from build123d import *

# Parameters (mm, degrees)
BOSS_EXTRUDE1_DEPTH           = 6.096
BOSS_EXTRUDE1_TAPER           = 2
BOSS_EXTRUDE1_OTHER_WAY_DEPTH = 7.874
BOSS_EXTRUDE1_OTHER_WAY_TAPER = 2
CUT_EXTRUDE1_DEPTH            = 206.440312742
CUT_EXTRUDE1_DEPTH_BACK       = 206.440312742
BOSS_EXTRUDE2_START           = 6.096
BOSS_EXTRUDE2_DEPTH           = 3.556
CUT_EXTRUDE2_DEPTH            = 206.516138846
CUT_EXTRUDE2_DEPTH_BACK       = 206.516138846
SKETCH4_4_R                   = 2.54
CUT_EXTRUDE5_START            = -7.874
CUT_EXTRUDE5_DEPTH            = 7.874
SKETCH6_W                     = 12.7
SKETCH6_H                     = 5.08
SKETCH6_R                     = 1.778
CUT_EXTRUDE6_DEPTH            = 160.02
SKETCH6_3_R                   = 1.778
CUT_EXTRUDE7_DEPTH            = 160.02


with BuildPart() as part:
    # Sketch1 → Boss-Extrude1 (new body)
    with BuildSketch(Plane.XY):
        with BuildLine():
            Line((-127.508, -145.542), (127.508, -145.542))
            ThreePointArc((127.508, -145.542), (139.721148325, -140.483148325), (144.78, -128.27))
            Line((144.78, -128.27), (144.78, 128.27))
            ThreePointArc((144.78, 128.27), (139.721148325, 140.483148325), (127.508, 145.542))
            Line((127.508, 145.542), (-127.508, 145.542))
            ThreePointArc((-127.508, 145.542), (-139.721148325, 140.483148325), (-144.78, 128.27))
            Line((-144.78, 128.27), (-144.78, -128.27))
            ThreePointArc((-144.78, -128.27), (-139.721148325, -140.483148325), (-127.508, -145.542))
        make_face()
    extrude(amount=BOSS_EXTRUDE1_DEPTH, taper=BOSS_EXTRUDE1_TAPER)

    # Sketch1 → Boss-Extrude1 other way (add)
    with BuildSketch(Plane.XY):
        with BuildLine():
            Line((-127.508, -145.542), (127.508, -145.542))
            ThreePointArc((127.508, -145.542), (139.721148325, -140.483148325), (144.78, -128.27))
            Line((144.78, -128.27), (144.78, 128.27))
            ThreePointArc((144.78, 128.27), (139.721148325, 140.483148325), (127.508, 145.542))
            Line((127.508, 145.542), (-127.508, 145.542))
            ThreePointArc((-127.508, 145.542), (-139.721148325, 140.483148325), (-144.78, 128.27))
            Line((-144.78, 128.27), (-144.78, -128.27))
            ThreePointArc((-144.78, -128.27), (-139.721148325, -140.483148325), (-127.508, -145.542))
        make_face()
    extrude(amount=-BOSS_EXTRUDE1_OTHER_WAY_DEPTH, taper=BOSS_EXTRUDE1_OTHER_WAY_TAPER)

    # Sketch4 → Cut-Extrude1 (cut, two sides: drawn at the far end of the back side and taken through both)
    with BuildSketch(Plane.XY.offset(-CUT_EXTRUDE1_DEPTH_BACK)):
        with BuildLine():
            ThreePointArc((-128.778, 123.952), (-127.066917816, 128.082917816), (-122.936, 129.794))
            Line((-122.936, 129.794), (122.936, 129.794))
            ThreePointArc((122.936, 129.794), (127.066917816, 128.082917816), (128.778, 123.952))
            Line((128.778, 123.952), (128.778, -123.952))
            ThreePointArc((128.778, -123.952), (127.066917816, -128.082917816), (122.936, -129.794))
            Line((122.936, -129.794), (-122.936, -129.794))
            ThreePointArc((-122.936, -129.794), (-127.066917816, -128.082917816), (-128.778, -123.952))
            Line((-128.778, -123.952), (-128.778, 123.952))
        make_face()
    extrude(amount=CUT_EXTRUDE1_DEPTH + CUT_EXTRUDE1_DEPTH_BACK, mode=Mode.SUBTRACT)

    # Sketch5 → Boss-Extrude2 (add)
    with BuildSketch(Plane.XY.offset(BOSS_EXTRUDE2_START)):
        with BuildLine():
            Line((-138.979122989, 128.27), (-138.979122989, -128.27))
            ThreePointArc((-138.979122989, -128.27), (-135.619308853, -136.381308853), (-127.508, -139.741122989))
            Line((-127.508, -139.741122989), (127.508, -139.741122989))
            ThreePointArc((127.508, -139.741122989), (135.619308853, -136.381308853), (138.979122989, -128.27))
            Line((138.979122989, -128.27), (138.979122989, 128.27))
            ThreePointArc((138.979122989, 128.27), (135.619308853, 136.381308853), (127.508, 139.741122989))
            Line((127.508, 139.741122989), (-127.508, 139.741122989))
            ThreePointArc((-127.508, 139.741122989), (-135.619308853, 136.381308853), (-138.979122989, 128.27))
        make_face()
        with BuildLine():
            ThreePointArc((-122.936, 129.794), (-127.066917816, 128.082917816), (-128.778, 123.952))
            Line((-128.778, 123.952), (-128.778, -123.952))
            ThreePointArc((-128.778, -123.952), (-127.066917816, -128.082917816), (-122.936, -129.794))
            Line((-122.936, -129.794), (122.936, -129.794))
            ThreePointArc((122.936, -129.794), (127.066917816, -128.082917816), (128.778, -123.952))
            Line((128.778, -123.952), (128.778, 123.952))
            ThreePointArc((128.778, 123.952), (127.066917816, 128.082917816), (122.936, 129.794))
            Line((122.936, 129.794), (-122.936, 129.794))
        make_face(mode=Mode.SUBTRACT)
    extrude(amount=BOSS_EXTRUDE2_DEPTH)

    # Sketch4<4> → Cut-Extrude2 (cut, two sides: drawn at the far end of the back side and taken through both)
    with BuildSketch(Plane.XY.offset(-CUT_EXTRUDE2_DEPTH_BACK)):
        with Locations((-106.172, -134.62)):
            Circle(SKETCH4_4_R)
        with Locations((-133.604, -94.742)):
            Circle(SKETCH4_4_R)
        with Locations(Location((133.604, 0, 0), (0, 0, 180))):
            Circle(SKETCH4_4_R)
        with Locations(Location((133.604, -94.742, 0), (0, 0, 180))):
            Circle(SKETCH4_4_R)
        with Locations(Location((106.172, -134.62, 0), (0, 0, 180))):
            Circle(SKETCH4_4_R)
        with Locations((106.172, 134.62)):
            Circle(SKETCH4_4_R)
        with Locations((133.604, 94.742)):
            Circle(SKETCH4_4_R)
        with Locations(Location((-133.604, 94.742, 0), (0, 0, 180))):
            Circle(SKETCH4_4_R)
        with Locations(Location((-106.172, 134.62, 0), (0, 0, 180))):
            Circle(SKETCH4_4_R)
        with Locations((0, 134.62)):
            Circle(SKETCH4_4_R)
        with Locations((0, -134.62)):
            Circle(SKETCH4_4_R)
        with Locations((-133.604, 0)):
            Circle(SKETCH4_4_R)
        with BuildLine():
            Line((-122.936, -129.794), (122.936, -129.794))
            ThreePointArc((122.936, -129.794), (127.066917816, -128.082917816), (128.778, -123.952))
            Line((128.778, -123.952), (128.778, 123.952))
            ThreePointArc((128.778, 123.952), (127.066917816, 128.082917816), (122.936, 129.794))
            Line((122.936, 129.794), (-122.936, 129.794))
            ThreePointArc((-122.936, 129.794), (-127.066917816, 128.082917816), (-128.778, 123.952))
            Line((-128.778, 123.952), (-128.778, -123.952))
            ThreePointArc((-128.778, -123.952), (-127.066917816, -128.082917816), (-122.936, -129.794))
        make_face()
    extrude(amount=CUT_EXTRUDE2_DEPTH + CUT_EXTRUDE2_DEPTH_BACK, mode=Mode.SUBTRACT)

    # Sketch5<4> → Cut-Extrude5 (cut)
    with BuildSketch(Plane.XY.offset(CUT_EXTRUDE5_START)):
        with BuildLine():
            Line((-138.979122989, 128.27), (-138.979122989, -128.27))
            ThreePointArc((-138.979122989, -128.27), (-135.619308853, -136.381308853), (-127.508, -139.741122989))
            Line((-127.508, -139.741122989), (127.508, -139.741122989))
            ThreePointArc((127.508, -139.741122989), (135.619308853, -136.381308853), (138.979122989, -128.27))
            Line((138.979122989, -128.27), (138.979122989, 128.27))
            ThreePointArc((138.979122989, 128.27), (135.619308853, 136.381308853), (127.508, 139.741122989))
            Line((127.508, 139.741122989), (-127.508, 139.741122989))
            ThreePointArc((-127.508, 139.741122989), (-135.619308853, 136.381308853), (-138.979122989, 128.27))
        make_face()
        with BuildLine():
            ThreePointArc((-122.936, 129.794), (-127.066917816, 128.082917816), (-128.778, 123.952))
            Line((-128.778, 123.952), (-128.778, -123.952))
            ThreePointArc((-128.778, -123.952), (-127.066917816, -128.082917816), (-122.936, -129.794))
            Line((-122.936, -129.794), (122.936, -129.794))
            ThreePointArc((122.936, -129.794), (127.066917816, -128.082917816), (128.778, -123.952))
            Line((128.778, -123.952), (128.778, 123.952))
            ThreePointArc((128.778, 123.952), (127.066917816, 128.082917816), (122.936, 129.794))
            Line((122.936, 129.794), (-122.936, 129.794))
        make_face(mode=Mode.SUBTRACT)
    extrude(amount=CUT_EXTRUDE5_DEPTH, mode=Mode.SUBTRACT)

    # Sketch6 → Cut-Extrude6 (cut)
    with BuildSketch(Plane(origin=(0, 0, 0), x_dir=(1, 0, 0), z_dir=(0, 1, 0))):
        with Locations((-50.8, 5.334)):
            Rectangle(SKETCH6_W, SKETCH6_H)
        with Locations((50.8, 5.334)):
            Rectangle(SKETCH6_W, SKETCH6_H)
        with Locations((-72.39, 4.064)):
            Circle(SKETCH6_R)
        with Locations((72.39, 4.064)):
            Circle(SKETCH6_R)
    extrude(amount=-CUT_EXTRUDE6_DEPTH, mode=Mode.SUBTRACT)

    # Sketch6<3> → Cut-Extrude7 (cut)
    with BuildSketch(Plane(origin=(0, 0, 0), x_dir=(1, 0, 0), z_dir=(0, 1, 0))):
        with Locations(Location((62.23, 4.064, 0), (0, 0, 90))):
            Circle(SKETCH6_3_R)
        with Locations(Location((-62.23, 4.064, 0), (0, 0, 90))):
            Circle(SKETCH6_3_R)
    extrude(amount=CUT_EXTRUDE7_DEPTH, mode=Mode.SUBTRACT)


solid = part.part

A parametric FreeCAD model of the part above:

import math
import FreeCAD as App
import Part
import Sketcher
from FreeCAD import Vector
Q = App.Units.Quantity


def add_polygon(sketch, points):
    """Adds a closed chain of lines whose ends are joined by coincident constraints."""
    first, n = sketch.GeometryCount, len(points)
    for a, b in zip(points, points[1:] + points[:1]):
        sketch.addGeometry(Part.LineSegment(App.Vector(*a, 0), App.Vector(*b, 0)), False)
    for i in range(n):
        sketch.addConstraint(Sketcher.Constraint("Coincident", first + i, 2, first + (i + 1) % n, 1))

doc = App.newDocument("Part")
body = doc.addObject("PartDesign::Body", "Body")

# Sketch on XY plane
sketch1 = body.newObject("Sketcher::SketchObject", "Sketch")
sketch1.AttachmentSupport = (doc.getObject("XY_Plane"), [""])
sketch1.MapMode = "FlatFace"
sketch1.addGeometry([
    Part.LineSegment(Vector(-128, -146, 0), Vector(128, -146, 0)),  # 0
    Part.ArcOfCircle(Part.Circle(Vector(128, -128, 0), Vector(0, 0, 1), 17), math.radians(-90), math.radians(0)),  # 1
    Part.LineSegment(Vector(145, -128, 0), Vector(145, 128, 0)),  # 2
    Part.ArcOfCircle(Part.Circle(Vector(128, 128, 0), Vector(0, 0, 1), 17), math.radians(0), math.radians(90)),  # 3
    Part.LineSegment(Vector(128, 146, 0), Vector(-128, 146, 0)),  # 4
    Part.ArcOfCircle(Part.Circle(Vector(-128, 128, 0), Vector(0, 0, 1), 17), math.radians(90), math.radians(180)),  # 5
    Part.LineSegment(Vector(-145, 128, 0), Vector(-145, -128, 0)),  # 6
    Part.ArcOfCircle(Part.Circle(Vector(-128, -128, 0), Vector(0, 0, 1), 17), math.radians(180), math.radians(270)),  # 7
], False)
sketch1.addConstraint([
    Sketcher.Constraint("Tangent", 0, 2, 1, 1),
    Sketcher.Constraint("Tangent", 1, 2, 2, 1),
    Sketcher.Constraint("Tangent", 2, 2, 3, 1),
    Sketcher.Constraint("Tangent", 3, 2, 4, 1),
    Sketcher.Constraint("Tangent", 4, 2, 5, 1),
    Sketcher.Constraint("Tangent", 5, 2, 6, 1),
    Sketcher.Constraint("Tangent", 6, 2, 7, 1),
    Sketcher.Constraint("Tangent", 7, 2, 0, 1),
    Sketcher.Constraint("Horizontal", 0),
    Sketcher.Constraint("Vertical", 2),
    Sketcher.Constraint("Horizontal", 4),
    Sketcher.Constraint("Vertical", 6),
    Sketcher.Constraint("Equal", 1, 3),
    Sketcher.Constraint("Equal", 3, 5),
    Sketcher.Constraint("Equal", 5, 7),
    Sketcher.Constraint("Symmetric", 1, 3, 5, 3, -1, 1),
    Sketcher.Constraint("Radius", 1, Q("0.68 in")),
    Sketcher.Constraint("DistanceY", 2, 1, 2, 2, Q("10.1 in")),
    Sketcher.Constraint("DistanceX", 0, 1, 0, 2, Q("10.04 in")),
])
pad1 = body.newObject("PartDesign::Pad", "Pad")
pad1.Profile = sketch1
pad1.Length = Q("0.24 in")
pad1.TaperAngle = -2

# Sketch on XY plane
sketch2 = body.newObject("Sketcher::SketchObject", "Sketch001")
sketch2.AttachmentSupport = (doc.getObject("XY_Plane"), [""])
sketch2.MapMode = "FlatFace"
sketch2.addGeometry([
    Part.LineSegment(Vector(-128, -146, 0), Vector(128, -146, 0)),  # 0
    Part.ArcOfCircle(Part.Circle(Vector(128, -128, 0), Vector(0, 0, 1), 17), math.radians(-90), math.radians(0)),  # 1
    Part.LineSegment(Vector(145, -128, 0), Vector(145, 128, 0)),  # 2
    Part.ArcOfCircle(Part.Circle(Vector(128, 128, 0), Vector(0, 0, 1), 17), math.radians(0), math.radians(90)),  # 3
    Part.LineSegment(Vector(128, 146, 0), Vector(-128, 146, 0)),  # 4
    Part.ArcOfCircle(Part.Circle(Vector(-128, 128, 0), Vector(0, 0, 1), 17), math.radians(90), math.radians(180)),  # 5
    Part.LineSegment(Vector(-145, 128, 0), Vector(-145, -128, 0)),  # 6
    Part.ArcOfCircle(Part.Circle(Vector(-128, -128, 0), Vector(0, 0, 1), 17), math.radians(180), math.radians(270)),  # 7
], False)
sketch2.addConstraint([
    Sketcher.Constraint("Tangent", 0, 2, 1, 1),
    Sketcher.Constraint("Tangent", 1, 2, 2, 1),
    Sketcher.Constraint("Tangent", 2, 2, 3, 1),
    Sketcher.Constraint("Tangent", 3, 2, 4, 1),
    Sketcher.Constraint("Tangent", 4, 2, 5, 1),
    Sketcher.Constraint("Tangent", 5, 2, 6, 1),
    Sketcher.Constraint("Tangent", 6, 2, 7, 1),
    Sketcher.Constraint("Tangent", 7, 2, 0, 1),
    Sketcher.Constraint("Horizontal", 0),
    Sketcher.Constraint("Vertical", 2),
    Sketcher.Constraint("Horizontal", 4),
    Sketcher.Constraint("Vertical", 6),
    Sketcher.Constraint("Equal", 1, 3),
    Sketcher.Constraint("Equal", 3, 5),
    Sketcher.Constraint("Equal", 5, 7),
    Sketcher.Constraint("Symmetric", 1, 3, 5, 3, -1, 1),
    Sketcher.Constraint("Radius", 1, Q("0.68 in")),
    Sketcher.Constraint("DistanceY", 2, 1, 2, 2, Q("10.1 in")),
    Sketcher.Constraint("DistanceX", 0, 1, 0, 2, Q("10.04 in")),
])
pad2 = body.newObject("PartDesign::Pad", "Pad001")
pad2.Profile = sketch2
pad2.Length = Q("0.31 in")
pad2.Reversed = True
pad2.TaperAngle = -2

# Sketch on XY plane
sketch3 = body.newObject("Sketcher::SketchObject", "Sketch002")
sketch3.AttachmentSupport = (doc.getObject("XY_Plane"), [""])
sketch3.MapMode = "FlatFace"
sketch3.addGeometry([
    Part.ArcOfCircle(Part.Circle(Vector(-123, 124, 0), Vector(0, 0, 1), 6), math.radians(90), math.radians(180)),  # 0
    Part.LineSegment(Vector(-129, 124, 0), Vector(-129, -124, 0)),  # 1
    Part.ArcOfCircle(Part.Circle(Vector(-123, -124, 0), Vector(0, 0, 1), 6), math.radians(180), math.radians(270)),  # 2
    Part.LineSegment(Vector(-123, -130, 0), Vector(123, -130, 0)),  # 3
    Part.ArcOfCircle(Part.Circle(Vector(123, -124, 0), Vector(0, 0, 1), 6), math.radians(-90), math.radians(0)),  # 4
    Part.LineSegment(Vector(129, -124, 0), Vector(129, 124, 0)),  # 5
    Part.ArcOfCircle(Part.Circle(Vector(123, 124, 0), Vector(0, 0, 1), 6), math.radians(0), math.radians(90)),  # 6
    Part.LineSegment(Vector(123, 130, 0), Vector(-123, 130, 0)),  # 7
], False)
sketch3.addConstraint([
    Sketcher.Constraint("Tangent", 0, 2, 1, 1),
    Sketcher.Constraint("Tangent", 1, 2, 2, 1),
    Sketcher.Constraint("Tangent", 2, 2, 3, 1),
    Sketcher.Constraint("Tangent", 3, 2, 4, 1),
    Sketcher.Constraint("Tangent", 4, 2, 5, 1),
    Sketcher.Constraint("Tangent", 5, 2, 6, 1),
    Sketcher.Constraint("Tangent", 6, 2, 7, 1),
    Sketcher.Constraint("Tangent", 7, 2, 0, 1),
    Sketcher.Constraint("Vertical", 1),
    Sketcher.Constraint("Horizontal", 3),
    Sketcher.Constraint("Vertical", 5),
    Sketcher.Constraint("Horizontal", 7),
    Sketcher.Constraint("Equal", 0, 2),
    Sketcher.Constraint("Equal", 2, 4),
    Sketcher.Constraint("Equal", 4, 6),
    Sketcher.Constraint("Symmetric", 0, 3, 4, 3, -1, 1),
    Sketcher.Constraint("Radius", 0, Q("0.23 in")),
    Sketcher.Constraint("DistanceX", 3, 1, 3, 2, Q("9.68 in")),
    Sketcher.Constraint("DistanceY", 1, 2, 1, 1, Q("9.76 in")),
])
pocket1 = body.newObject("PartDesign::Pocket", "Pocket")
pocket1.Profile = sketch3
pocket1.Type = "ThroughAll"
pocket1.Midplane = True

# Sketch on XY plane
sketch4 = body.newObject("Sketcher::SketchObject", "Sketch003")
sketch4.AttachmentSupport = (doc.getObject("XY_Plane"), [""])
sketch4.MapMode = "FlatFace"
sketch4.AttachmentOffset = App.Placement(Vector(0, 0, 0.24 * 25.4), App.Rotation())
sketch4.addGeometry([
    Part.LineSegment(Vector(-139, 128, 0), Vector(-139, -128, 0)),  # 0
    Part.ArcOfCircle(Part.Circle(Vector(-128, -128, 0), Vector(0, 0, 1), 11), math.radians(-180), math.radians(-90)),  # 1
    Part.LineSegment(Vector(-128, -140, 0), Vector(128, -140, 0)),  # 2
    Part.ArcOfCircle(Part.Circle(Vector(128, -128, 0), Vector(0, 0, 1), 11), math.radians(-90), math.radians(0)),  # 3
    Part.LineSegment(Vector(139, -128, 0), Vector(139, 128, 0)),  # 4
    Part.ArcOfCircle(Part.Circle(Vector(128, 128, 0), Vector(0, 0, 1), 11), math.radians(0), math.radians(90)),  # 5
    Part.LineSegment(Vector(128, 140, 0), Vector(-128, 140, 0)),  # 6
    Part.ArcOfCircle(Part.Circle(Vector(-128, 128, 0), Vector(0, 0, 1), 11), math.radians(90), math.radians(180)),  # 7
    Part.ArcOfCircle(Part.Circle(Vector(-123, 124, 0), Vector(0, 0, 1), 6), math.radians(90), math.radians(180)),  # 8
    Part.LineSegment(Vector(-123, 130, 0), Vector(123, 130, 0)),  # 9
    Part.ArcOfCircle(Part.Circle(Vector(123, 124, 0), Vector(0, 0, 1), 6), math.radians(0), math.radians(90)),  # 10
    Part.LineSegment(Vector(129, 124, 0), Vector(129, -124, 0)),  # 11
    Part.ArcOfCircle(Part.Circle(Vector(123, -124, 0), Vector(0, 0, 1), 6), math.radians(-90), math.radians(0)),  # 12
    Part.LineSegment(Vector(123, -130, 0), Vector(-123, -130, 0)),  # 13
    Part.ArcOfCircle(Part.Circle(Vector(-123, -124, 0), Vector(0, 0, 1), 6), math.radians(180), math.radians(270)),  # 14
    Part.LineSegment(Vector(-129, -124, 0), Vector(-129, 124, 0)),  # 15
], False)
sketch4.addConstraint([
    Sketcher.Constraint("Tangent", 0, 2, 1, 1),
    Sketcher.Constraint("Tangent", 1, 2, 2, 1),
    Sketcher.Constraint("Tangent", 2, 2, 3, 1),
    Sketcher.Constraint("Tangent", 3, 2, 4, 1),
    Sketcher.Constraint("Tangent", 4, 2, 5, 1),
    Sketcher.Constraint("Tangent", 5, 2, 6, 1),
    Sketcher.Constraint("Tangent", 6, 2, 7, 1),
    Sketcher.Constraint("Tangent", 7, 2, 0, 1),
    Sketcher.Constraint("Tangent", 8, 1, 9, 1),
    Sketcher.Constraint("Tangent", 9, 2, 10, 2),
    Sketcher.Constraint("Tangent", 10, 1, 11, 1),
    Sketcher.Constraint("Tangent", 11, 2, 12, 2),
    Sketcher.Constraint("Tangent", 12, 1, 13, 1),
    Sketcher.Constraint("Tangent", 13, 2, 14, 2),
    Sketcher.Constraint("Tangent", 14, 1, 15, 1),
    Sketcher.Constraint("Tangent", 15, 2, 8, 2),
    Sketcher.Constraint("Vertical", 0),
    Sketcher.Constraint("Horizontal", 2),
    Sketcher.Constraint("Vertical", 4),
    Sketcher.Constraint("Horizontal", 6),
    Sketcher.Constraint("Horizontal", 9),
    Sketcher.Constraint("Vertical", 11),
    Sketcher.Constraint("Horizontal", 13),
    Sketcher.Constraint("Vertical", 15),
    Sketcher.Constraint("Equal", 1, 3),
    Sketcher.Constraint("Equal", 3, 5),
    Sketcher.Constraint("Equal", 5, 7),
    Sketcher.Constraint("Equal", 8, 10),
    Sketcher.Constraint("Equal", 10, 12),
    Sketcher.Constraint("Equal", 12, 14),
    Sketcher.Constraint("Symmetric", 1, 3, 5, 3, -1, 1),
    Sketcher.Constraint("Symmetric", 8, 3, 12, 3, -1, 1),
    Sketcher.Constraint("Radius", 8, Q("0.23 in")),
    Sketcher.Constraint("DistanceY", 0, 2, 0, 1, Q("10.1 in")),
    Sketcher.Constraint("DistanceX", 2, 1, 2, 2, Q("10.04 in")),
    Sketcher.Constraint("DistanceX", 9, 1, 9, 2, Q("9.68 in")),
    Sketcher.Constraint("DistanceY", 11, 2, 11, 1, Q("9.76 in")),
    Sketcher.Constraint("Radius", 1, Q("11.471123 mm")),
])
pad3 = body.newObject("PartDesign::Pad", "Pad002")
pad3.Profile = sketch4
pad3.Length = Q("0.14 in")

# Sketch on XY plane
sketch5 = body.newObject("Sketcher::SketchObject", "Sketch004")
sketch5.AttachmentSupport = (doc.getObject("XY_Plane"), [""])
sketch5.MapMode = "FlatFace"
sketch5.addGeometry([
    Part.Circle(Vector(-106.2, -134.6, 0), Vector(0, 0, 1), 2.5),  # 0
    Part.Circle(Vector(-133.6, -94.7, 0), Vector(0, 0, 1), 2.5),  # 1
    Part.Circle(Vector(133.6, 0, 0), Vector(0, 0, 1), 2.5),  # 2
    Part.Circle(Vector(133.6, -94.7, 0), Vector(0, 0, 1), 2.5),  # 3
    Part.Circle(Vector(106.2, -134.6, 0), Vector(0, 0, 1), 2.5),  # 4
    Part.Circle(Vector(106.2, 134.6, 0), Vector(0, 0, 1), 2.5),  # 5
    Part.Circle(Vector(133.6, 94.7, 0), Vector(0, 0, 1), 2.5),  # 6
    Part.Circle(Vector(-133.6, 94.7, 0), Vector(0, 0, 1), 2.5),  # 7
    Part.Circle(Vector(-106.2, 134.6, 0), Vector(0, 0, 1), 2.5),  # 8
    Part.Circle(Vector(0, 134.6, 0), Vector(0, 0, 1), 2.5),  # 9
    Part.Circle(Vector(0, -134.6, 0), Vector(0, 0, 1), 2.5),  # 10
    Part.Circle(Vector(-133.6, 0, 0), Vector(0, 0, 1), 2.5),  # 11
    Part.LineSegment(Vector(-122.9, -129.8, 0), Vector(122.9, -129.8, 0)),  # 12
    Part.ArcOfCircle(Part.Circle(Vector(122.9, -124, 0), Vector(0, 0, 1), 5.8), math.radians(-90), math.radians(0)),  # 13
    Part.LineSegment(Vector(128.8, -124, 0), Vector(128.8, 124, 0)),  # 14
    Part.ArcOfCircle(Part.Circle(Vector(122.9, 124, 0), Vector(0, 0, 1), 5.8), math.radians(0), math.radians(90)),  # 15
    Part.LineSegment(Vector(122.9, 129.8, 0), Vector(-122.9, 129.8, 0)),  # 16
    Part.ArcOfCircle(Part.Circle(Vector(-122.9, 124, 0), Vector(0, 0, 1), 5.8), math.radians(90), math.radians(180)),  # 17
    Part.LineSegment(Vector(-128.8, 124, 0), Vector(-128.8, -124, 0)),  # 18
    Part.ArcOfCircle(Part.Circle(Vector(-122.9, -124, 0), Vector(0, 0, 1), 5.8), math.radians(180), math.radians(270)),  # 19
], False)
sketch5.addConstraint([
    Sketcher.Constraint("Tangent", 12, 2, 13, 1),
    Sketcher.Constraint("Tangent", 13, 2, 14, 1),
    Sketcher.Constraint("Tangent", 14, 2, 15, 1),
    Sketcher.Constraint("Tangent", 15, 2, 16, 1),
    Sketcher.Constraint("Tangent", 16, 2, 17, 1),
    Sketcher.Constraint("Tangent", 17, 2, 18, 1),
    Sketcher.Constraint("Tangent", 18, 2, 19, 1),
    Sketcher.Constraint("Tangent", 19, 2, 12, 1),
    Sketcher.Constraint("Horizontal", 12),
    Sketcher.Constraint("Vertical", 14),
    Sketcher.Constraint("Horizontal", 16),
    Sketcher.Constraint("Vertical", 18),
    Sketcher.Constraint("Equal", 0, 1),
    Sketcher.Constraint("Equal", 1, 2),
    Sketcher.Constraint("Equal", 2, 3),
    Sketcher.Constraint("Equal", 3, 4),
    Sketcher.Constraint("Equal", 4, 5),
    Sketcher.Constraint("Equal", 5, 6),
    Sketcher.Constraint("Equal", 6, 7),
    Sketcher.Constraint("Equal", 7, 8),
    Sketcher.Constraint("Equal", 8, 9),
    Sketcher.Constraint("Equal", 9, 10),
    Sketcher.Constraint("Equal", 10, 11),
    Sketcher.Constraint("Equal", 13, 15),
    Sketcher.Constraint("Equal", 15, 17),
    Sketcher.Constraint("Equal", 17, 19),
    Sketcher.Constraint("Symmetric", 0, 3, 5, 3, -1, 1),
    Sketcher.Constraint("Symmetric", 1, 3, 6, 3, -1, 1),
    Sketcher.Constraint("Symmetric", 3, 3, 7, 3, -1, 1),
    Sketcher.Constraint("Symmetric", 4, 3, 8, 3, -1, 1),
    Sketcher.Constraint("Symmetric", 9, 3, 10, 3, -1, 1),
    Sketcher.Constraint("Symmetric", 2, 3, 11, 3, -1, 1),
    Sketcher.Constraint("Symmetric", 13, 3, 17, 3, -1, 1),
    Sketcher.Constraint("Symmetric", 1, 3, 3, 3, -2),
    Sketcher.Constraint("Symmetric", 0, 3, 4, 3, -2),
    Sketcher.Constraint("PointOnObject", 2, 3, -1),
    Sketcher.Constraint("PointOnObject", 9, 3, -2),
    Sketcher.Constraint("Horizontal", 8, 3, 9, 3),
    Sketcher.Constraint("Vertical", 2, 3, 3, 3),
    Sketcher.Constraint("Diameter", 0, Q("0.2 in")),
    Sketcher.Constraint("Radius", 13, Q("0.23 in")),
    Sketcher.Constraint("DistanceX", 12, 1, 12, 2, Q("9.68 in")),
    Sketcher.Constraint("DistanceY", 14, 1, 14, 2, Q("9.76 in")),
    Sketcher.Constraint("DistanceY", 0, 3, -1, 1, Q("5.3 in")),
    Sketcher.Constraint("DistanceX", 0, 3, -1, 1, Q("4.18 in")),
    Sketcher.Constraint("DistanceX", 1, 3, -1, 1, Q("5.26 in")),
    Sketcher.Constraint("DistanceY", 1, 3, -1, 1, Q("3.73 in")),
])
pocket2 = body.newObject("PartDesign::Pocket", "Pocket001")
pocket2.Profile = sketch5
pocket2.Type = "ThroughAll"
pocket2.Midplane = True

# Sketch on XY plane
sketch6 = body.newObject("Sketcher::SketchObject", "Sketch005")
sketch6.AttachmentSupport = (doc.getObject("XY_Plane"), [""])
sketch6.MapMode = "FlatFace"
sketch6.AttachmentOffset = App.Placement(Vector(0, 0, -0.31 * 25.4), App.Rotation())
sketch6.addGeometry([
    Part.LineSegment(Vector(-139, 128, 0), Vector(-139, -128, 0)),  # 0
    Part.ArcOfCircle(Part.Circle(Vector(-128, -128, 0), Vector(0, 0, 1), 11), math.radians(-180), math.radians(-90)),  # 1
    Part.LineSegment(Vector(-128, -140, 0), Vector(128, -140, 0)),  # 2
    Part.ArcOfCircle(Part.Circle(Vector(128, -128, 0), Vector(0, 0, 1), 11), math.radians(-90), math.radians(0)),  # 3
    Part.LineSegment(Vector(139, -128, 0), Vector(139, 128, 0)),  # 4
    Part.ArcOfCircle(Part.Circle(Vector(128, 128, 0), Vector(0, 0, 1), 11), math.radians(0), math.radians(90)),  # 5
    Part.LineSegment(Vector(128, 140, 0), Vector(-128, 140, 0)),  # 6
    Part.ArcOfCircle(Part.Circle(Vector(-128, 128, 0), Vector(0, 0, 1), 11), math.radians(90), math.radians(180)),  # 7
    Part.ArcOfCircle(Part.Circle(Vector(-123, 124, 0), Vector(0, 0, 1), 6), math.radians(90), math.radians(180)),  # 8
    Part.LineSegment(Vector(-123, 130, 0), Vector(123, 130, 0)),  # 9
    Part.ArcOfCircle(Part.Circle(Vector(123, 124, 0), Vector(0, 0, 1), 6), math.radians(0), math.radians(90)),  # 10
    Part.LineSegment(Vector(129, 124, 0), Vector(129, -124, 0)),  # 11
    Part.ArcOfCircle(Part.Circle(Vector(123, -124, 0), Vector(0, 0, 1), 6), math.radians(-90), math.radians(0)),  # 12
    Part.LineSegment(Vector(123, -130, 0), Vector(-123, -130, 0)),  # 13
    Part.ArcOfCircle(Part.Circle(Vector(-123, -124, 0), Vector(0, 0, 1), 6), math.radians(180), math.radians(270)),  # 14
    Part.LineSegment(Vector(-129, -124, 0), Vector(-129, 124, 0)),  # 15
], False)
sketch6.addConstraint([
    Sketcher.Constraint("Tangent", 0, 2, 1, 1),
    Sketcher.Constraint("Tangent", 1, 2, 2, 1),
    Sketcher.Constraint("Tangent", 2, 2, 3, 1),
    Sketcher.Constraint("Tangent", 3, 2, 4, 1),
    Sketcher.Constraint("Tangent", 4, 2, 5, 1),
    Sketcher.Constraint("Tangent", 5, 2, 6, 1),
    Sketcher.Constraint("Tangent", 6, 2, 7, 1),
    Sketcher.Constraint("Tangent", 7, 2, 0, 1),
    Sketcher.Constraint("Tangent", 8, 1, 9, 1),
    Sketcher.Constraint("Tangent", 9, 2, 10, 2),
    Sketcher.Constraint("Tangent", 10, 1, 11, 1),
    Sketcher.Constraint("Tangent", 11, 2, 12, 2),
    Sketcher.Constraint("Tangent", 12, 1, 13, 1),
    Sketcher.Constraint("Tangent", 13, 2, 14, 2),
    Sketcher.Constraint("Tangent", 14, 1, 15, 1),
    Sketcher.Constraint("Tangent", 15, 2, 8, 2),
    Sketcher.Constraint("Vertical", 0),
    Sketcher.Constraint("Horizontal", 2),
    Sketcher.Constraint("Vertical", 4),
    Sketcher.Constraint("Horizontal", 6),
    Sketcher.Constraint("Horizontal", 9),
    Sketcher.Constraint("Vertical", 11),
    Sketcher.Constraint("Horizontal", 13),
    Sketcher.Constraint("Vertical", 15),
    Sketcher.Constraint("Equal", 1, 3),
    Sketcher.Constraint("Equal", 3, 5),
    Sketcher.Constraint("Equal", 5, 7),
    Sketcher.Constraint("Equal", 8, 10),
    Sketcher.Constraint("Equal", 10, 12),
    Sketcher.Constraint("Equal", 12, 14),
    Sketcher.Constraint("Symmetric", 1, 3, 5, 3, -1, 1),
    Sketcher.Constraint("Symmetric", 8, 3, 12, 3, -1, 1),
    Sketcher.Constraint("Radius", 8, Q("0.23 in")),
    Sketcher.Constraint("DistanceY", 0, 2, 0, 1, Q("10.1 in")),
    Sketcher.Constraint("DistanceX", 2, 1, 2, 2, Q("10.04 in")),
    Sketcher.Constraint("DistanceX", 9, 1, 9, 2, Q("9.68 in")),
    Sketcher.Constraint("DistanceY", 11, 2, 11, 1, Q("9.76 in")),
    Sketcher.Constraint("Radius", 1, Q("11.471123 mm")),
])
pocket3 = body.newObject("PartDesign::Pocket", "Pocket002")
pocket3.Profile = sketch6
pocket3.Length = Q("0.31 in")
pocket3.Reversed = True

# Sketch on XZ plane
sketch7 = body.newObject("Sketcher::SketchObject", "Sketch006")
sketch7.AttachmentSupport = (doc.getObject("XZ_Plane"), [""])
sketch7.MapMode = "FlatFace"
add_polygon(sketch7, [(-57.1, -7.9), (-57.1, -2.8), (-44.5, -2.8), (-44.5, -7.9)])  # lines 0-3
add_polygon(sketch7, [(44.5, -7.9), (44.5, -2.8), (57.1, -2.8), (57.1, -7.9)])  # lines 4-7
sketch7.addGeometry(Part.Circle(Vector(-72.4, -4.1, 0), Vector(0, 0, 1), 1.8), False)  # 8
sketch7.addGeometry(Part.Circle(Vector(72.4, -4.1, 0), Vector(0, 0, 1), 1.8), False)  # 9
sketch7.addConstraint([
    Sketcher.Constraint("Vertical", 0),
    Sketcher.Constraint("Horizontal", 1),
    Sketcher.Constraint("Vertical", 2),
    Sketcher.Constraint("Horizontal", 3),
    Sketcher.Constraint("Vertical", 4),
    Sketcher.Constraint("Horizontal", 5),
    Sketcher.Constraint("Vertical", 6),
    Sketcher.Constraint("Horizontal", 7),
    Sketcher.Constraint("Equal", 8, 9),
    Sketcher.Constraint("Symmetric", 8, 3, 9, 3, -2),
    Sketcher.Constraint("Symmetric", 1, 2, 4, 2, -2),
    Sketcher.Constraint("Symmetric", 3, 2, 6, 2, -2),
    Sketcher.Constraint("Diameter", 8, Q("0.14 in")),
    Sketcher.Constraint("DistanceX", 1, 1, 1, 2, Q("0.5 in")),
    Sketcher.Constraint("DistanceY", 0, 1, 0, 2, Q("0.2 in")),
    Sketcher.Constraint("DistanceX", 0, 2, 4, 2, Q("4 in")),
    Sketcher.Constraint("DistanceX", 8, 3, 9, 3, Q("5.7 in")),
    Sketcher.Constraint("DistanceY", 8, 3, -1, 1, Q("0.16 in")),
    Sketcher.Constraint("DistanceY", 0, 2, -1, 1, Q("0.11 in")),
])
pocket4 = body.newObject("PartDesign::Pocket", "Pocket003")
pocket4.Profile = sketch7
pocket4.Length = Q("6.3 in")
pocket4.Reversed = True

# Sketch on XZ plane
sketch8 = body.newObject("Sketcher::SketchObject", "Sketch007")
sketch8.AttachmentSupport = (doc.getObject("XZ_Plane"), [""])
sketch8.MapMode = "FlatFace"
sketch8.addGeometry([
    Part.Circle(Vector(62.2, -4.1, 0), Vector(0, 0, 1), 1.8),
    Part.Circle(Vector(-62.2, -4.1, 0), Vector(0, 0, 1), 1.8),
], False)
sketch8.addConstraint([
    Sketcher.Constraint("Equal", 0, 1),
    Sketcher.Constraint("Symmetric", 0, 3, 1, 3, -2),
    Sketcher.Constraint("Diameter", 0, Q("0.14 in")),
    Sketcher.Constraint("DistanceX", 1, 3, 0, 3, Q("4.9 in")),
    Sketcher.Constraint("DistanceY", 0, 3, -1, 1, Q("0.16 in")),
])
pocket5 = body.newObject("PartDesign::Pocket", "Pocket004")
pocket5.Profile = sketch8
pocket5.Length = Q("6.3 in")

doc.recompute()
